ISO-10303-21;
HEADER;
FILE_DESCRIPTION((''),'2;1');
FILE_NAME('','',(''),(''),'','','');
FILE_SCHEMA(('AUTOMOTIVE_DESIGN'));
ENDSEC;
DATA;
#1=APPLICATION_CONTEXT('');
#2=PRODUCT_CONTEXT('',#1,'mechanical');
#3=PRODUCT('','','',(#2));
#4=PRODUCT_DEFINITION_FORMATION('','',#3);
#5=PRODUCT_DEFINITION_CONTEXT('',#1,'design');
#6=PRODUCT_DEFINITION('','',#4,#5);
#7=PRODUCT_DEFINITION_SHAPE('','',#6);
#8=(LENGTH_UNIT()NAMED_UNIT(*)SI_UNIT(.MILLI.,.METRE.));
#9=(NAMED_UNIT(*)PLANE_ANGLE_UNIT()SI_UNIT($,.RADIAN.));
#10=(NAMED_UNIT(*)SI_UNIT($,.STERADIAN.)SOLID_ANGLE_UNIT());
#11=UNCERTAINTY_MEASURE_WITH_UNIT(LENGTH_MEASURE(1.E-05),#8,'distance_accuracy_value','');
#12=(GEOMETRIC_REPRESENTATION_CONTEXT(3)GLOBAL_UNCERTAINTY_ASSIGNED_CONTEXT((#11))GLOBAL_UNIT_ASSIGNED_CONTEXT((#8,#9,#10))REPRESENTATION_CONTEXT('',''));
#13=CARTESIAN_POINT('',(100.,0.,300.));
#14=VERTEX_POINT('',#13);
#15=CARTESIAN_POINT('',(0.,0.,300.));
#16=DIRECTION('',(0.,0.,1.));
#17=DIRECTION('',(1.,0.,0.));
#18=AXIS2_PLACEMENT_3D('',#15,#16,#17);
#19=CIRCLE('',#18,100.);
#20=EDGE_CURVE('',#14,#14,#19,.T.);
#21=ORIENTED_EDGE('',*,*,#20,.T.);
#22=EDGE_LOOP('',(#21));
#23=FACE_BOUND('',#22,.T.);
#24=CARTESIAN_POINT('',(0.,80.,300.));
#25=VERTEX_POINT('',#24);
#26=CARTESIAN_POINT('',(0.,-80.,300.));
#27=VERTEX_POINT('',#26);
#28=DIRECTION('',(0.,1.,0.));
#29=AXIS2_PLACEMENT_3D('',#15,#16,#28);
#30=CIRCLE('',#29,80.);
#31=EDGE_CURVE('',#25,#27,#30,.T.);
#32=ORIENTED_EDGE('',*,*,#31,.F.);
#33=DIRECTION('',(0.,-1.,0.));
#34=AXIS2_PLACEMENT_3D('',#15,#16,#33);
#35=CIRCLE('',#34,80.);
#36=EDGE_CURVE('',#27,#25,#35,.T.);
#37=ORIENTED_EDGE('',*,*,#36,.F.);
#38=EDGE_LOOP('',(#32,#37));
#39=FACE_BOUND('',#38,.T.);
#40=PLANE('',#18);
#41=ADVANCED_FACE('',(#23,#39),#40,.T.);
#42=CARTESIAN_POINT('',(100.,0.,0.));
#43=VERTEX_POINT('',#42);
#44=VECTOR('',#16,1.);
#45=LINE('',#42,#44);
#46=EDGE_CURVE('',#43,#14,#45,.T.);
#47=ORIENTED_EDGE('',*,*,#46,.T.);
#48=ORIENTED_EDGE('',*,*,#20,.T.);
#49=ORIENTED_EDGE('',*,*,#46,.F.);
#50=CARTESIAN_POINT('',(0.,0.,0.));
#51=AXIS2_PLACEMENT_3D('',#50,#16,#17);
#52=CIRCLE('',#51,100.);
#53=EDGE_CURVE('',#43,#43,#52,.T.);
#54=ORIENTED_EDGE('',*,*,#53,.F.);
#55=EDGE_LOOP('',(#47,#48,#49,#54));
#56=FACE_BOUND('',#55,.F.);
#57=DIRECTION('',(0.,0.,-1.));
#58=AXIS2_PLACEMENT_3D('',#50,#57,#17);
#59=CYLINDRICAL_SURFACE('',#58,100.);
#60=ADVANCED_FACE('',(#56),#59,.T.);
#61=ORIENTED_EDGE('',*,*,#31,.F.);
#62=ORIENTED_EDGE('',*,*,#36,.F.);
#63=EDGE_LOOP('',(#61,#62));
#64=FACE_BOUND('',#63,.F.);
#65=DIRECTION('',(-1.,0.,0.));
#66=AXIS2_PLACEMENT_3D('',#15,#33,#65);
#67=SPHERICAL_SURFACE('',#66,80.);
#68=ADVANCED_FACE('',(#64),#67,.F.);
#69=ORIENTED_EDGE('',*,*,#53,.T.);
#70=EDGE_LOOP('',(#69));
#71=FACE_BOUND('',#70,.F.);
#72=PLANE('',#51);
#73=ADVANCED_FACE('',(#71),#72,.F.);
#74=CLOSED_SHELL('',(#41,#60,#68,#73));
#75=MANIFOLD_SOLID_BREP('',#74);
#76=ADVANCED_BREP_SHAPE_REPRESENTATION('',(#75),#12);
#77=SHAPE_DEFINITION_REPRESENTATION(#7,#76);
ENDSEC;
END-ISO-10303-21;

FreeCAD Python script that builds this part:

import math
import FreeCAD as App
import Part
import Sketcher

V = App.Vector

doc = App.newDocument("Part")
params = doc.addObject("Spreadsheet::Sheet", "Params")
for row, (alias, value) in enumerate([
    ("sketch1_diameter", "200 mm"),
    ("pad1_length", "300 mm"),
    ("sketch2_radius", "80 mm"),
    ("groove_angle", "360 deg"),
], start=1):
    params.set(f"A{row}", alias)
    params.set(f"B{row}", "=" + value)
    params.setAlias(f"B{row}", alias)

body = doc.addObject("PartDesign::Body", "Body")

# Sketch on XY plane
sketch1 = doc.addObject("Sketcher::SketchObject", "Sketch")
body.addObject(sketch1)
sketch1.AttachmentSupport = (doc.XY_Plane, [""])
sketch1.MapMode = "FlatFace"
sketch1.addGeometry(Part.Circle(V(0, 0, 0), V(0, 0, 1), 100), False)
sketch1.addConstraint(Sketcher.Constraint("Coincident", 0, 3, -1, 1))
sketch1.addConstraint(Sketcher.Constraint("Diameter", 0, 200.0))
sketch1.setExpression("Constraints[1]", "Params.sketch1_diameter")
pad1 = doc.addObject("PartDesign::Pad", "Pad")
body.addObject(pad1)
pad1.Profile = sketch1
pad1.setExpression("Length", "Params.pad1_length")

# Sketch on XY plane
sketch2 = doc.addObject("Sketcher::SketchObject", "Sketch001")
body.addObject(sketch2)
sketch2.AttachmentSupport = (doc.XY_Plane, [""])
sketch2.MapMode = "FlatFace"
sketch2.AttachmentOffset = App.Placement(V(0, 0, 300), App.Rotation())
sketch2.addGeometry(Part.LineSegment(V(0, -80, 0), V(0, 80, 0)), False)
sketch2.addGeometry(Part.ArcOfCircle(Part.Circle(V(0, 0, 0), V(0, 0, 1), 80), math.radians(90), math.radians(270)), False)
sketch2.addConstraint(Sketcher.Constraint("Coincident", 0, 1, 1, 2))
sketch2.addConstraint(Sketcher.Constraint("Coincident", 1, 1, 0, 2))
sketch2.addConstraint(Sketcher.Constraint("Vertical", 0))
sketch2.addConstraint(Sketcher.Constraint("Coincident", 1, 3, -1, 1))
sketch2.addConstraint(Sketcher.Constraint("PointOnObject", 0, 1, -2))
sketch2.addConstraint(Sketcher.Constraint("Radius", 1, 80.0))
sketch2.setExpression("Constraints[5]", "Params.sketch2_radius")
groove = doc.addObject("PartDesign::Groove", "Groove")
body.addObject(groove)
groove.Profile = sketch2
groove.ReferenceAxis = (sketch2, ["V_Axis"])
groove.setExpression("Angle", "Params.groove_angle")

doc.recompute()
